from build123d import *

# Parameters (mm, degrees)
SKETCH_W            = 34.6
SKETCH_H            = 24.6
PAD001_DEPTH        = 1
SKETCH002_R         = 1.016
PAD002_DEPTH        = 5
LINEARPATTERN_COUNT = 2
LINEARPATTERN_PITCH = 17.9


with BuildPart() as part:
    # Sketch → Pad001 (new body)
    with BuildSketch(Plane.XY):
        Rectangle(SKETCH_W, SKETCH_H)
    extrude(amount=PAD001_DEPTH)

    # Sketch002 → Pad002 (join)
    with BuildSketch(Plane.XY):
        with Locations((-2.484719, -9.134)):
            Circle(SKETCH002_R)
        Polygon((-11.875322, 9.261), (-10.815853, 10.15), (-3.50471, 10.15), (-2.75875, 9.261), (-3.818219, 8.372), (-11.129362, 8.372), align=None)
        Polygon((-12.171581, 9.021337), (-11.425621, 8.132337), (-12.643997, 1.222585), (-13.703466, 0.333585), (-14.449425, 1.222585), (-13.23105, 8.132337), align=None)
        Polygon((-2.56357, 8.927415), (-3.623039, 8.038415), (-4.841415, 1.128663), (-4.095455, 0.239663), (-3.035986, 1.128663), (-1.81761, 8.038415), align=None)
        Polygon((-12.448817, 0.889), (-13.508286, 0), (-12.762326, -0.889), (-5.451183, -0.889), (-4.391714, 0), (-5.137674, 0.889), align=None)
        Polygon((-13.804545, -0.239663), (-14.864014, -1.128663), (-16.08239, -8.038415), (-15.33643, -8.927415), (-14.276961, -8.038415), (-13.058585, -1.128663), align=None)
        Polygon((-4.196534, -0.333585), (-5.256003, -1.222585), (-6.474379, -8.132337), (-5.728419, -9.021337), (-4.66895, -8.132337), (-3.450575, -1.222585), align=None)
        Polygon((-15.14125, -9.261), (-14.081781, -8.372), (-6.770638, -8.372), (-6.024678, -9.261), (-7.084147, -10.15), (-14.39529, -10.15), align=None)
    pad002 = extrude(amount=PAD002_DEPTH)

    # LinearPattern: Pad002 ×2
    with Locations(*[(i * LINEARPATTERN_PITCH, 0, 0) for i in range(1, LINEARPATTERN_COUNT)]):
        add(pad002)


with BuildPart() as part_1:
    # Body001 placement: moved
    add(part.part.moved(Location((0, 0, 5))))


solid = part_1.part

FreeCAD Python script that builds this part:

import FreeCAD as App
import Part
import Sketcher
Q = App.Units.Quantity

doc = App.newDocument("Part")
body = doc.addObject("PartDesign::Body", "Body")

sketch1 = body.newObject("Sketcher::SketchObject", "Sketch")
sketch1.AttachmentSupport = (doc.getObject("XY_Plane"), [""])
sketch1.MapMode = "FlatFace"
sketch1.addGeometry([
    Part.LineSegment(App.Vector(-17.3, 12.3, 0), App.Vector(-17.3, -12.3, 0)),
    Part.LineSegment(App.Vector(-17.3, -12.3, 0), App.Vector(17.3, -12.3, 0)),
    Part.LineSegment(App.Vector(17.3, -12.3, 0), App.Vector(17.3, 12.3, 0)),
    Part.LineSegment(App.Vector(17.3, 12.3, 0), App.Vector(-17.3, 12.3, 0)),
], False)
sketch1.addConstraint([
    Sketcher.Constraint("Coincident", 0, 2, 1, 1),
    Sketcher.Constraint("Coincident", 1, 2, 2, 1),
    Sketcher.Constraint("Coincident", 2, 2, 3, 1),
    Sketcher.Constraint("Coincident", 3, 2, 0, 1),
    Sketcher.Constraint("Vertical", 0),
    Sketcher.Constraint("Horizontal", 1),
    Sketcher.Constraint("Vertical", 2),
    Sketcher.Constraint("Horizontal", 3),
    Sketcher.Constraint("Symmetric", 0, 2, 2, 2, -1, 1),
    Sketcher.Constraint("DistanceX", 1, 1, 1, 2, 34.6),
    Sketcher.Constraint("DistanceY", 0, 2, 0, 1, 24.6),
])
pad1 = body.newObject("PartDesign::Pad", "Pad")
pad1.Profile = sketch1
pad1.Length = 1

sketch2 = body.newObject("Sketcher::SketchObject", "Sketch001")
sketch2.AttachmentSupport = (doc.getObject("XY_Plane"), [""])
sketch2.MapMode = "FlatFace"
sketch2.addGeometry([
    Part.Circle(App.Vector(-2.484719, -9.134, 0), App.Vector(0, 0, 1), 1.016),
    Part.LineSegment(App.Vector(-10.815853, 10.15, 0), App.Vector(-11.875322, 9.261, 0)),
    Part.LineSegment(App.Vector(-11.875322, 9.261, 0), App.Vector(-11.129362, 8.372, 0)),
    Part.LineSegment(App.Vector(-11.129362, 8.372, 0), App.Vector(-3.818219, 8.372, 0)),
    Part.LineSegment(App.Vector(-3.818219, 8.372, 0), App.Vector(-2.75875, 9.261, 0)),
    Part.LineSegment(App.Vector(-2.75875, 9.261, 0), App.Vector(-3.50471, 10.15, 0)),
    Part.LineSegment(App.Vector(-3.50471, 10.15, 0), App.Vector(-10.815853, 10.15, 0)),
    Part.LineSegment(App.Vector(-11.425621, 8.132337, 0), App.Vector(-12.171581, 9.021337, 0)),
    Part.LineSegment(App.Vector(-12.171581, 9.021337, 0), App.Vector(-13.23105, 8.132337, 0)),
    Part.LineSegment(App.Vector(-13.23105, 8.132337, 0), App.Vector(-14.449425, 1.222585, 0)),
    Part.LineSegment(App.Vector(-14.449425, 1.222585, 0), App.Vector(-13.703466, 0.333585, 0)),
    Part.LineSegment(App.Vector(-13.703466, 0.333585, 0), App.Vector(-12.643997, 1.222585, 0)),
    Part.LineSegment(App.Vector(-12.643997, 1.222585, 0), App.Vector(-11.425621, 8.132337, 0)),
    Part.LineSegment(App.Vector(-2.56357, 8.927415, 0), App.Vector(-3.623039, 8.038415, 0)),
    Part.LineSegment(App.Vector(-3.623039, 8.038415, 0), App.Vector(-4.841415, 1.128663, 0)),
    Part.LineSegment(App.Vector(-4.841415, 1.128663, 0), App.Vector(-4.095455, 0.239663, 0)),
    Part.LineSegment(App.Vector(-4.095455, 0.239663, 0), App.Vector(-3.035986, 1.128663, 0)),
    Part.LineSegment(App.Vector(-3.035986, 1.128663, 0), App.Vector(-1.81761, 8.038415, 0)),
    Part.LineSegment(App.Vector(-1.81761, 8.038415, 0), App.Vector(-2.56357, 8.927415, 0)),
    Part.LineSegment(App.Vector(-12.448817, 0.889, 0), App.Vector(-13.508286, 0, 0)),
    Part.LineSegment(App.Vector(-13.508286, 0, 0), App.Vector(-12.762326, -0.889, 0)),
    Part.LineSegment(App.Vector(-12.762326, -0.889, 0), App.Vector(-5.451183, -0.889, 0)),
    Part.LineSegment(App.Vector(-5.451183, -0.889, 0), App.Vector(-4.391714, 0, 0)),
    Part.LineSegment(App.Vector(-4.391714, 0, 0), App.Vector(-5.137674, 0.889, 0)),
    Part.LineSegment(App.Vector(-5.137674, 0.889, 0), App.Vector(-12.448817, 0.889, 0)),
    Part.LineSegment(App.Vector(-13.804545, -0.239663, 0), App.Vector(-14.864014, -1.128663, 0)),
    Part.LineSegment(App.Vector(-14.864014, -1.128663, 0), App.Vector(-16.08239, -8.038415, 0)),
    Part.LineSegment(App.Vector(-16.08239, -8.038415, 0), App.Vector(-15.33643, -8.927415, 0)),
    Part.LineSegment(App.Vector(-15.33643, -8.927415, 0), App.Vector(-14.276961, -8.038415, 0)),
    Part.LineSegment(App.Vector(-14.276961, -8.038415, 0), App.Vector(-13.058585, -1.128663, 0)),
    Part.LineSegment(App.Vector(-13.058585, -1.128663, 0), App.Vector(-13.804545, -0.239663, 0)),
    Part.LineSegment(App.Vector(-4.196534, -0.333585, 0), App.Vector(-5.256003, -1.222585, 0)),
    Part.LineSegment(App.Vector(-5.256003, -1.222585, 0), App.Vector(-6.474379, -8.132337, 0)),
    Part.LineSegment(App.Vector(-6.474379, -8.132337, 0), App.Vector(-5.728419, -9.021337, 0)),
    Part.LineSegment(App.Vector(-5.728419, -9.021337, 0), App.Vector(-4.66895, -8.132337, 0)),
    Part.LineSegment(App.Vector(-4.66895, -8.132337, 0), App.Vector(-3.450575, -1.222585, 0)),
    Part.LineSegment(App.Vector(-3.450575, -1.222585, 0), App.Vector(-4.196534, -0.333585, 0)),
    Part.LineSegment(App.Vector(-14.081781, -8.372, 0), App.Vector(-15.14125, -9.261, 0)),
    Part.LineSegment(App.Vector(-15.14125, -9.261, 0), App.Vector(-14.39529, -10.15, 0)),
    Part.LineSegment(App.Vector(-14.39529, -10.15, 0), App.Vector(-7.084147, -10.15, 0)),
    Part.LineSegment(App.Vector(-7.084147, -10.15, 0), App.Vector(-6.024678, -9.261, 0)),
    Part.LineSegment(App.Vector(-6.024678, -9.261, 0), App.Vector(-6.770638, -8.372, 0)),
    Part.LineSegment(App.Vector(-6.770638, -8.372, 0), App.Vector(-14.081781, -8.372, 0)),
], False)
sketch2.addConstraint([
    Sketcher.Constraint("Coincident", 1, 2, 2, 1),
    Sketcher.Constraint("Coincident", 2, 2, 3, 1),
    Sketcher.Constraint("Coincident", 3, 2, 4, 1),
    Sketcher.Constraint("Coincident", 4, 2, 5, 1),
    Sketcher.Constraint("Coincident", 5, 2, 6, 1),
    Sketcher.Constraint("Coincident", 6, 2, 1, 1),
    Sketcher.Constraint("Coincident", 7, 2, 8, 1),
    Sketcher.Constraint("Coincident", 8, 2, 9, 1),
    Sketcher.Constraint("Coincident", 9, 2, 10, 1),
    Sketcher.Constraint("Coincident", 10, 2, 11, 1),
    Sketcher.Constraint("Coincident", 11, 2, 12, 1),
    Sketcher.Constraint("Coincident", 12, 2, 7, 1),
    Sketcher.Constraint("Coincident", 13, 2, 14, 1),
    Sketcher.Constraint("Coincident", 14, 2, 15, 1),
    Sketcher.Constraint("Coincident", 15, 2, 16, 1),
    Sketcher.Constraint("Coincident", 16, 2, 17, 1),
    Sketcher.Constraint("Coincident", 17, 2, 18, 1),
    Sketcher.Constraint("Coincident", 18, 2, 13, 1),
    Sketcher.Constraint("Coincident", 19, 2, 20, 1),
    Sketcher.Constraint("Coincident", 20, 2, 21, 1),
    Sketcher.Constraint("Coincident", 21, 2, 22, 1),
    Sketcher.Constraint("Coincident", 22, 2, 23, 1),
    Sketcher.Constraint("Coincident", 23, 2, 24, 1),
    Sketcher.Constraint("Coincident", 24, 2, 19, 1),
    Sketcher.Constraint("Coincident", 25, 2, 26, 1),
    Sketcher.Constraint("Coincident", 26, 2, 27, 1),
    Sketcher.Constraint("Coincident", 27, 2, 28, 1),
    Sketcher.Constraint("Coincident", 28, 2, 29, 1),
    Sketcher.Constraint("Coincident", 29, 2, 30, 1),
    Sketcher.Constraint("Coincident", 30, 2, 25, 1),
    Sketcher.Constraint("Coincident", 31, 2, 32, 1),
    Sketcher.Constraint("Coincident", 32, 2, 33, 1),
    Sketcher.Constraint("Coincident", 33, 2, 34, 1),
    Sketcher.Constraint("Coincident", 34, 2, 35, 1),
    Sketcher.Constraint("Coincident", 35, 2, 36, 1),
    Sketcher.Constraint("Coincident", 36, 2, 31, 1),
    Sketcher.Constraint("Coincident", 37, 2, 38, 1),
    Sketcher.Constraint("Coincident", 38, 2, 39, 1),
    Sketcher.Constraint("Coincident", 39, 2, 40, 1),
    Sketcher.Constraint("Coincident", 40, 2, 41, 1),
    Sketcher.Constraint("Coincident", 41, 2, 42, 1),
    Sketcher.Constraint("Coincident", 42, 2, 37, 1),
    Sketcher.Constraint("Horizontal", 3),
    Sketcher.Constraint("Horizontal", 6),
    Sketcher.Constraint("Horizontal", 21),
    Sketcher.Constraint("Horizontal", 24),
    Sketcher.Constraint("Horizontal", 39),
    Sketcher.Constraint("Horizontal", 42),
    Sketcher.Constraint("PointOnObject", 19, 2, -1),
    Sketcher.Constraint("PointOnObject", 22, 2, -1),
    Sketcher.Constraint("Perpendicular", 1, 2),
    Sketcher.Constraint("Perpendicular", 2, 4),
    Sketcher.Constraint("Perpendicular", 4, 5),
    Sketcher.Constraint("Parallel", 5, 7),
    Sketcher.Constraint("Perpendicular", 7, 8),
    Sketcher.Constraint("Perpendicular", 8, 10),
    Sketcher.Constraint("Perpendicular", 10, 11),
    Sketcher.Constraint("Parallel", 9, 12),
    Sketcher.Constraint("Parallel", 11, 13),
    Sketcher.Constraint("Parallel", 12, 14),
    Sketcher.Constraint("Perpendicular", 13, 15),
    Sketcher.Constraint("Perpendicular", 15, 16),
    Sketcher.Constraint("Parallel", 14, 17),
    Sketcher.Constraint("Perpendicular", 16, 18),
    Sketcher.Constraint("Perpendicular", 18, 19),
    Sketcher.Constraint("Perpendicular", 19, 20),
    Sketcher.Constraint("Perpendicular", 20, 22),
    Sketcher.Constraint("Perpendicular", 22, 23),
    Sketcher.Constraint("Perpendicular", 23, 25),
    Sketcher.Constraint("Parallel", 17, 26),
    Sketcher.Constraint("Perpendicular", 25, 27),
    Sketcher.Constraint("Perpendicular", 27, 28),
    Sketcher.Constraint("Parallel", 26, 29),
    Sketcher.Constraint("Perpendicular", 28, 30),
    Sketcher.Constraint("Perpendicular", 30, 31),
    Sketcher.Constraint("Parallel", 29, 32),
    Sketcher.Constraint("Perpendicular", 31, 33),
    Sketcher.Constraint("Perpendicular", 33, 34),
    Sketcher.Constraint("Parallel", 32, 35),
    Sketcher.Constraint("Perpendicular", 34, 36),
    Sketcher.Constraint("Perpendicular", 36, 37),
    Sketcher.Constraint("Perpendicular", 37, 38),
    Sketcher.Constraint("Perpendicular", 38, 40),
    Sketcher.Constraint("Perpendicular", 40, 41),
    Sketcher.Constraint("Horizontal", 1, 2, 4, 2),
    Sketcher.Constraint("Horizontal", 9, 2, 11, 2),
    Sketcher.Constraint("Horizontal", 8, 2, 12, 2),
    Sketcher.Constraint("Horizontal", 14, 2, 16, 2),
    Sketcher.Constraint("Horizontal", 13, 2, 17, 2),
    Sketcher.Constraint("Horizontal", 26, 2, 28, 2),
    Sketcher.Constraint("Horizontal", 25, 2, 29, 2),
    Sketcher.Constraint("Horizontal", 32, 2, 34, 2),
    Sketcher.Constraint("Horizontal", 31, 2, 35, 2),
    Sketcher.Constraint("Horizontal", 37, 2, 40, 2),
    Sketcher.Constraint("Equal", 3, 6),
    Sketcher.Constraint("Equal", 6, 21),
    Sketcher.Constraint("Equal", 21, 24),
    Sketcher.Constraint("Equal", 24, 39),
    Sketcher.Constraint("Equal", 39, 42),
    Sketcher.Constraint("Equal", 5, 7),
    Sketcher.Constraint("Equal", 11, 13),
    Sketcher.Constraint("Equal", 12, 14),
    Sketcher.Constraint("Equal", 16, 19),
    Sketcher.Constraint("Equal", 22, 25),
    Sketcher.Constraint("Equal", 17, 26),
    Sketcher.Constraint("Equal", 28, 31),
    Sketcher.Constraint("Equal", 29, 32),
    Sketcher.Constraint("Equal", 34, 37),
    Sketcher.Constraint("Angle", 1, Q("-140.000001 deg")),
    Sketcher.Constraint("Angle", 9, Q("-99.999994 deg")),
    Sketcher.Constraint("Diameter", 0, 2.032),
    Sketcher.Constraint("DistanceY", -1, 1, 5, 2, 10.15),
    Sketcher.Constraint("DistanceY", 38, 2, -1, 1, 10.15),
    Sketcher.Constraint("DistanceY", 0, 3, -1, 1, 9.134),
    Sketcher.Constraint("DistanceY", -1, 1, 1, 2, 9.261),
    Sketcher.Constraint("DistanceY", 26, 2, 10, 2, 8.372),
    Sketcher.Constraint("DistanceX", 3, 2, 0, 3, 1.3335),
    Sketcher.Constraint("DistanceX", 1, 2, 12, 2, 0.449701),
    Sketcher.Constraint("DistanceX", 5, 2, 17, 2, 1.6871),
    Sketcher.Constraint("DistanceX", 9, 2, 20, 2, 1.687099),
    Sketcher.Constraint("DistanceX", 19, 2, 29, 2, 0.449701),
    Sketcher.Constraint("DistanceX", 33, 2, 0, 3, 3.2437),
    Sketcher.Constraint("DistanceX", 26, 2, 38, 2, 1.6871),
    Sketcher.Constraint("DistanceX", 32, 2, 40, 2, 0.449701),
    Sketcher.Constraint("DistanceX", 3, 1, 3, 2, 7.311143),
    Sketcher.Constraint("DistanceX", 0, 3, -1, 1, 2.484719),
    Sketcher.Constraint("DistanceY", 31, 2, 14, 2, 2.351248),
    Sketcher.Constraint("DistanceY", 32, 2, 28, 2, 0.093922),
    Sketcher.Constraint("DistanceY", -1, 1, 7, 2, 9.021337),
])
pad2 = body.newObject("PartDesign::Pad", "Pad001")
pad2.Profile = sketch2
pad2.Length = 5
doc.recompute()

linearpattern = body.newObject("PartDesign::LinearPattern", "LinearPattern")
linearpattern.Originals = [pad2]
linearpattern.Direction = (doc.getObject("X_Axis"), [""])
linearpattern.Mode = "offset"
linearpattern.Offset = 17.9
linearpattern.Occurrences = 2
body.Tip = linearpattern
body2 = doc.addObject("PartDesign::Body", "Body001")
doc.recompute()

body.Placement = App.Placement(App.Vector(0, 0, 5), App.Rotation(App.Vector(0, 0, 1), 0))
boolean = body2.newObject("PartDesign::Boolean", "Boolean")
boolean.Type = "Fuse"
boolean.addObjects([body])

doc.recompute()
